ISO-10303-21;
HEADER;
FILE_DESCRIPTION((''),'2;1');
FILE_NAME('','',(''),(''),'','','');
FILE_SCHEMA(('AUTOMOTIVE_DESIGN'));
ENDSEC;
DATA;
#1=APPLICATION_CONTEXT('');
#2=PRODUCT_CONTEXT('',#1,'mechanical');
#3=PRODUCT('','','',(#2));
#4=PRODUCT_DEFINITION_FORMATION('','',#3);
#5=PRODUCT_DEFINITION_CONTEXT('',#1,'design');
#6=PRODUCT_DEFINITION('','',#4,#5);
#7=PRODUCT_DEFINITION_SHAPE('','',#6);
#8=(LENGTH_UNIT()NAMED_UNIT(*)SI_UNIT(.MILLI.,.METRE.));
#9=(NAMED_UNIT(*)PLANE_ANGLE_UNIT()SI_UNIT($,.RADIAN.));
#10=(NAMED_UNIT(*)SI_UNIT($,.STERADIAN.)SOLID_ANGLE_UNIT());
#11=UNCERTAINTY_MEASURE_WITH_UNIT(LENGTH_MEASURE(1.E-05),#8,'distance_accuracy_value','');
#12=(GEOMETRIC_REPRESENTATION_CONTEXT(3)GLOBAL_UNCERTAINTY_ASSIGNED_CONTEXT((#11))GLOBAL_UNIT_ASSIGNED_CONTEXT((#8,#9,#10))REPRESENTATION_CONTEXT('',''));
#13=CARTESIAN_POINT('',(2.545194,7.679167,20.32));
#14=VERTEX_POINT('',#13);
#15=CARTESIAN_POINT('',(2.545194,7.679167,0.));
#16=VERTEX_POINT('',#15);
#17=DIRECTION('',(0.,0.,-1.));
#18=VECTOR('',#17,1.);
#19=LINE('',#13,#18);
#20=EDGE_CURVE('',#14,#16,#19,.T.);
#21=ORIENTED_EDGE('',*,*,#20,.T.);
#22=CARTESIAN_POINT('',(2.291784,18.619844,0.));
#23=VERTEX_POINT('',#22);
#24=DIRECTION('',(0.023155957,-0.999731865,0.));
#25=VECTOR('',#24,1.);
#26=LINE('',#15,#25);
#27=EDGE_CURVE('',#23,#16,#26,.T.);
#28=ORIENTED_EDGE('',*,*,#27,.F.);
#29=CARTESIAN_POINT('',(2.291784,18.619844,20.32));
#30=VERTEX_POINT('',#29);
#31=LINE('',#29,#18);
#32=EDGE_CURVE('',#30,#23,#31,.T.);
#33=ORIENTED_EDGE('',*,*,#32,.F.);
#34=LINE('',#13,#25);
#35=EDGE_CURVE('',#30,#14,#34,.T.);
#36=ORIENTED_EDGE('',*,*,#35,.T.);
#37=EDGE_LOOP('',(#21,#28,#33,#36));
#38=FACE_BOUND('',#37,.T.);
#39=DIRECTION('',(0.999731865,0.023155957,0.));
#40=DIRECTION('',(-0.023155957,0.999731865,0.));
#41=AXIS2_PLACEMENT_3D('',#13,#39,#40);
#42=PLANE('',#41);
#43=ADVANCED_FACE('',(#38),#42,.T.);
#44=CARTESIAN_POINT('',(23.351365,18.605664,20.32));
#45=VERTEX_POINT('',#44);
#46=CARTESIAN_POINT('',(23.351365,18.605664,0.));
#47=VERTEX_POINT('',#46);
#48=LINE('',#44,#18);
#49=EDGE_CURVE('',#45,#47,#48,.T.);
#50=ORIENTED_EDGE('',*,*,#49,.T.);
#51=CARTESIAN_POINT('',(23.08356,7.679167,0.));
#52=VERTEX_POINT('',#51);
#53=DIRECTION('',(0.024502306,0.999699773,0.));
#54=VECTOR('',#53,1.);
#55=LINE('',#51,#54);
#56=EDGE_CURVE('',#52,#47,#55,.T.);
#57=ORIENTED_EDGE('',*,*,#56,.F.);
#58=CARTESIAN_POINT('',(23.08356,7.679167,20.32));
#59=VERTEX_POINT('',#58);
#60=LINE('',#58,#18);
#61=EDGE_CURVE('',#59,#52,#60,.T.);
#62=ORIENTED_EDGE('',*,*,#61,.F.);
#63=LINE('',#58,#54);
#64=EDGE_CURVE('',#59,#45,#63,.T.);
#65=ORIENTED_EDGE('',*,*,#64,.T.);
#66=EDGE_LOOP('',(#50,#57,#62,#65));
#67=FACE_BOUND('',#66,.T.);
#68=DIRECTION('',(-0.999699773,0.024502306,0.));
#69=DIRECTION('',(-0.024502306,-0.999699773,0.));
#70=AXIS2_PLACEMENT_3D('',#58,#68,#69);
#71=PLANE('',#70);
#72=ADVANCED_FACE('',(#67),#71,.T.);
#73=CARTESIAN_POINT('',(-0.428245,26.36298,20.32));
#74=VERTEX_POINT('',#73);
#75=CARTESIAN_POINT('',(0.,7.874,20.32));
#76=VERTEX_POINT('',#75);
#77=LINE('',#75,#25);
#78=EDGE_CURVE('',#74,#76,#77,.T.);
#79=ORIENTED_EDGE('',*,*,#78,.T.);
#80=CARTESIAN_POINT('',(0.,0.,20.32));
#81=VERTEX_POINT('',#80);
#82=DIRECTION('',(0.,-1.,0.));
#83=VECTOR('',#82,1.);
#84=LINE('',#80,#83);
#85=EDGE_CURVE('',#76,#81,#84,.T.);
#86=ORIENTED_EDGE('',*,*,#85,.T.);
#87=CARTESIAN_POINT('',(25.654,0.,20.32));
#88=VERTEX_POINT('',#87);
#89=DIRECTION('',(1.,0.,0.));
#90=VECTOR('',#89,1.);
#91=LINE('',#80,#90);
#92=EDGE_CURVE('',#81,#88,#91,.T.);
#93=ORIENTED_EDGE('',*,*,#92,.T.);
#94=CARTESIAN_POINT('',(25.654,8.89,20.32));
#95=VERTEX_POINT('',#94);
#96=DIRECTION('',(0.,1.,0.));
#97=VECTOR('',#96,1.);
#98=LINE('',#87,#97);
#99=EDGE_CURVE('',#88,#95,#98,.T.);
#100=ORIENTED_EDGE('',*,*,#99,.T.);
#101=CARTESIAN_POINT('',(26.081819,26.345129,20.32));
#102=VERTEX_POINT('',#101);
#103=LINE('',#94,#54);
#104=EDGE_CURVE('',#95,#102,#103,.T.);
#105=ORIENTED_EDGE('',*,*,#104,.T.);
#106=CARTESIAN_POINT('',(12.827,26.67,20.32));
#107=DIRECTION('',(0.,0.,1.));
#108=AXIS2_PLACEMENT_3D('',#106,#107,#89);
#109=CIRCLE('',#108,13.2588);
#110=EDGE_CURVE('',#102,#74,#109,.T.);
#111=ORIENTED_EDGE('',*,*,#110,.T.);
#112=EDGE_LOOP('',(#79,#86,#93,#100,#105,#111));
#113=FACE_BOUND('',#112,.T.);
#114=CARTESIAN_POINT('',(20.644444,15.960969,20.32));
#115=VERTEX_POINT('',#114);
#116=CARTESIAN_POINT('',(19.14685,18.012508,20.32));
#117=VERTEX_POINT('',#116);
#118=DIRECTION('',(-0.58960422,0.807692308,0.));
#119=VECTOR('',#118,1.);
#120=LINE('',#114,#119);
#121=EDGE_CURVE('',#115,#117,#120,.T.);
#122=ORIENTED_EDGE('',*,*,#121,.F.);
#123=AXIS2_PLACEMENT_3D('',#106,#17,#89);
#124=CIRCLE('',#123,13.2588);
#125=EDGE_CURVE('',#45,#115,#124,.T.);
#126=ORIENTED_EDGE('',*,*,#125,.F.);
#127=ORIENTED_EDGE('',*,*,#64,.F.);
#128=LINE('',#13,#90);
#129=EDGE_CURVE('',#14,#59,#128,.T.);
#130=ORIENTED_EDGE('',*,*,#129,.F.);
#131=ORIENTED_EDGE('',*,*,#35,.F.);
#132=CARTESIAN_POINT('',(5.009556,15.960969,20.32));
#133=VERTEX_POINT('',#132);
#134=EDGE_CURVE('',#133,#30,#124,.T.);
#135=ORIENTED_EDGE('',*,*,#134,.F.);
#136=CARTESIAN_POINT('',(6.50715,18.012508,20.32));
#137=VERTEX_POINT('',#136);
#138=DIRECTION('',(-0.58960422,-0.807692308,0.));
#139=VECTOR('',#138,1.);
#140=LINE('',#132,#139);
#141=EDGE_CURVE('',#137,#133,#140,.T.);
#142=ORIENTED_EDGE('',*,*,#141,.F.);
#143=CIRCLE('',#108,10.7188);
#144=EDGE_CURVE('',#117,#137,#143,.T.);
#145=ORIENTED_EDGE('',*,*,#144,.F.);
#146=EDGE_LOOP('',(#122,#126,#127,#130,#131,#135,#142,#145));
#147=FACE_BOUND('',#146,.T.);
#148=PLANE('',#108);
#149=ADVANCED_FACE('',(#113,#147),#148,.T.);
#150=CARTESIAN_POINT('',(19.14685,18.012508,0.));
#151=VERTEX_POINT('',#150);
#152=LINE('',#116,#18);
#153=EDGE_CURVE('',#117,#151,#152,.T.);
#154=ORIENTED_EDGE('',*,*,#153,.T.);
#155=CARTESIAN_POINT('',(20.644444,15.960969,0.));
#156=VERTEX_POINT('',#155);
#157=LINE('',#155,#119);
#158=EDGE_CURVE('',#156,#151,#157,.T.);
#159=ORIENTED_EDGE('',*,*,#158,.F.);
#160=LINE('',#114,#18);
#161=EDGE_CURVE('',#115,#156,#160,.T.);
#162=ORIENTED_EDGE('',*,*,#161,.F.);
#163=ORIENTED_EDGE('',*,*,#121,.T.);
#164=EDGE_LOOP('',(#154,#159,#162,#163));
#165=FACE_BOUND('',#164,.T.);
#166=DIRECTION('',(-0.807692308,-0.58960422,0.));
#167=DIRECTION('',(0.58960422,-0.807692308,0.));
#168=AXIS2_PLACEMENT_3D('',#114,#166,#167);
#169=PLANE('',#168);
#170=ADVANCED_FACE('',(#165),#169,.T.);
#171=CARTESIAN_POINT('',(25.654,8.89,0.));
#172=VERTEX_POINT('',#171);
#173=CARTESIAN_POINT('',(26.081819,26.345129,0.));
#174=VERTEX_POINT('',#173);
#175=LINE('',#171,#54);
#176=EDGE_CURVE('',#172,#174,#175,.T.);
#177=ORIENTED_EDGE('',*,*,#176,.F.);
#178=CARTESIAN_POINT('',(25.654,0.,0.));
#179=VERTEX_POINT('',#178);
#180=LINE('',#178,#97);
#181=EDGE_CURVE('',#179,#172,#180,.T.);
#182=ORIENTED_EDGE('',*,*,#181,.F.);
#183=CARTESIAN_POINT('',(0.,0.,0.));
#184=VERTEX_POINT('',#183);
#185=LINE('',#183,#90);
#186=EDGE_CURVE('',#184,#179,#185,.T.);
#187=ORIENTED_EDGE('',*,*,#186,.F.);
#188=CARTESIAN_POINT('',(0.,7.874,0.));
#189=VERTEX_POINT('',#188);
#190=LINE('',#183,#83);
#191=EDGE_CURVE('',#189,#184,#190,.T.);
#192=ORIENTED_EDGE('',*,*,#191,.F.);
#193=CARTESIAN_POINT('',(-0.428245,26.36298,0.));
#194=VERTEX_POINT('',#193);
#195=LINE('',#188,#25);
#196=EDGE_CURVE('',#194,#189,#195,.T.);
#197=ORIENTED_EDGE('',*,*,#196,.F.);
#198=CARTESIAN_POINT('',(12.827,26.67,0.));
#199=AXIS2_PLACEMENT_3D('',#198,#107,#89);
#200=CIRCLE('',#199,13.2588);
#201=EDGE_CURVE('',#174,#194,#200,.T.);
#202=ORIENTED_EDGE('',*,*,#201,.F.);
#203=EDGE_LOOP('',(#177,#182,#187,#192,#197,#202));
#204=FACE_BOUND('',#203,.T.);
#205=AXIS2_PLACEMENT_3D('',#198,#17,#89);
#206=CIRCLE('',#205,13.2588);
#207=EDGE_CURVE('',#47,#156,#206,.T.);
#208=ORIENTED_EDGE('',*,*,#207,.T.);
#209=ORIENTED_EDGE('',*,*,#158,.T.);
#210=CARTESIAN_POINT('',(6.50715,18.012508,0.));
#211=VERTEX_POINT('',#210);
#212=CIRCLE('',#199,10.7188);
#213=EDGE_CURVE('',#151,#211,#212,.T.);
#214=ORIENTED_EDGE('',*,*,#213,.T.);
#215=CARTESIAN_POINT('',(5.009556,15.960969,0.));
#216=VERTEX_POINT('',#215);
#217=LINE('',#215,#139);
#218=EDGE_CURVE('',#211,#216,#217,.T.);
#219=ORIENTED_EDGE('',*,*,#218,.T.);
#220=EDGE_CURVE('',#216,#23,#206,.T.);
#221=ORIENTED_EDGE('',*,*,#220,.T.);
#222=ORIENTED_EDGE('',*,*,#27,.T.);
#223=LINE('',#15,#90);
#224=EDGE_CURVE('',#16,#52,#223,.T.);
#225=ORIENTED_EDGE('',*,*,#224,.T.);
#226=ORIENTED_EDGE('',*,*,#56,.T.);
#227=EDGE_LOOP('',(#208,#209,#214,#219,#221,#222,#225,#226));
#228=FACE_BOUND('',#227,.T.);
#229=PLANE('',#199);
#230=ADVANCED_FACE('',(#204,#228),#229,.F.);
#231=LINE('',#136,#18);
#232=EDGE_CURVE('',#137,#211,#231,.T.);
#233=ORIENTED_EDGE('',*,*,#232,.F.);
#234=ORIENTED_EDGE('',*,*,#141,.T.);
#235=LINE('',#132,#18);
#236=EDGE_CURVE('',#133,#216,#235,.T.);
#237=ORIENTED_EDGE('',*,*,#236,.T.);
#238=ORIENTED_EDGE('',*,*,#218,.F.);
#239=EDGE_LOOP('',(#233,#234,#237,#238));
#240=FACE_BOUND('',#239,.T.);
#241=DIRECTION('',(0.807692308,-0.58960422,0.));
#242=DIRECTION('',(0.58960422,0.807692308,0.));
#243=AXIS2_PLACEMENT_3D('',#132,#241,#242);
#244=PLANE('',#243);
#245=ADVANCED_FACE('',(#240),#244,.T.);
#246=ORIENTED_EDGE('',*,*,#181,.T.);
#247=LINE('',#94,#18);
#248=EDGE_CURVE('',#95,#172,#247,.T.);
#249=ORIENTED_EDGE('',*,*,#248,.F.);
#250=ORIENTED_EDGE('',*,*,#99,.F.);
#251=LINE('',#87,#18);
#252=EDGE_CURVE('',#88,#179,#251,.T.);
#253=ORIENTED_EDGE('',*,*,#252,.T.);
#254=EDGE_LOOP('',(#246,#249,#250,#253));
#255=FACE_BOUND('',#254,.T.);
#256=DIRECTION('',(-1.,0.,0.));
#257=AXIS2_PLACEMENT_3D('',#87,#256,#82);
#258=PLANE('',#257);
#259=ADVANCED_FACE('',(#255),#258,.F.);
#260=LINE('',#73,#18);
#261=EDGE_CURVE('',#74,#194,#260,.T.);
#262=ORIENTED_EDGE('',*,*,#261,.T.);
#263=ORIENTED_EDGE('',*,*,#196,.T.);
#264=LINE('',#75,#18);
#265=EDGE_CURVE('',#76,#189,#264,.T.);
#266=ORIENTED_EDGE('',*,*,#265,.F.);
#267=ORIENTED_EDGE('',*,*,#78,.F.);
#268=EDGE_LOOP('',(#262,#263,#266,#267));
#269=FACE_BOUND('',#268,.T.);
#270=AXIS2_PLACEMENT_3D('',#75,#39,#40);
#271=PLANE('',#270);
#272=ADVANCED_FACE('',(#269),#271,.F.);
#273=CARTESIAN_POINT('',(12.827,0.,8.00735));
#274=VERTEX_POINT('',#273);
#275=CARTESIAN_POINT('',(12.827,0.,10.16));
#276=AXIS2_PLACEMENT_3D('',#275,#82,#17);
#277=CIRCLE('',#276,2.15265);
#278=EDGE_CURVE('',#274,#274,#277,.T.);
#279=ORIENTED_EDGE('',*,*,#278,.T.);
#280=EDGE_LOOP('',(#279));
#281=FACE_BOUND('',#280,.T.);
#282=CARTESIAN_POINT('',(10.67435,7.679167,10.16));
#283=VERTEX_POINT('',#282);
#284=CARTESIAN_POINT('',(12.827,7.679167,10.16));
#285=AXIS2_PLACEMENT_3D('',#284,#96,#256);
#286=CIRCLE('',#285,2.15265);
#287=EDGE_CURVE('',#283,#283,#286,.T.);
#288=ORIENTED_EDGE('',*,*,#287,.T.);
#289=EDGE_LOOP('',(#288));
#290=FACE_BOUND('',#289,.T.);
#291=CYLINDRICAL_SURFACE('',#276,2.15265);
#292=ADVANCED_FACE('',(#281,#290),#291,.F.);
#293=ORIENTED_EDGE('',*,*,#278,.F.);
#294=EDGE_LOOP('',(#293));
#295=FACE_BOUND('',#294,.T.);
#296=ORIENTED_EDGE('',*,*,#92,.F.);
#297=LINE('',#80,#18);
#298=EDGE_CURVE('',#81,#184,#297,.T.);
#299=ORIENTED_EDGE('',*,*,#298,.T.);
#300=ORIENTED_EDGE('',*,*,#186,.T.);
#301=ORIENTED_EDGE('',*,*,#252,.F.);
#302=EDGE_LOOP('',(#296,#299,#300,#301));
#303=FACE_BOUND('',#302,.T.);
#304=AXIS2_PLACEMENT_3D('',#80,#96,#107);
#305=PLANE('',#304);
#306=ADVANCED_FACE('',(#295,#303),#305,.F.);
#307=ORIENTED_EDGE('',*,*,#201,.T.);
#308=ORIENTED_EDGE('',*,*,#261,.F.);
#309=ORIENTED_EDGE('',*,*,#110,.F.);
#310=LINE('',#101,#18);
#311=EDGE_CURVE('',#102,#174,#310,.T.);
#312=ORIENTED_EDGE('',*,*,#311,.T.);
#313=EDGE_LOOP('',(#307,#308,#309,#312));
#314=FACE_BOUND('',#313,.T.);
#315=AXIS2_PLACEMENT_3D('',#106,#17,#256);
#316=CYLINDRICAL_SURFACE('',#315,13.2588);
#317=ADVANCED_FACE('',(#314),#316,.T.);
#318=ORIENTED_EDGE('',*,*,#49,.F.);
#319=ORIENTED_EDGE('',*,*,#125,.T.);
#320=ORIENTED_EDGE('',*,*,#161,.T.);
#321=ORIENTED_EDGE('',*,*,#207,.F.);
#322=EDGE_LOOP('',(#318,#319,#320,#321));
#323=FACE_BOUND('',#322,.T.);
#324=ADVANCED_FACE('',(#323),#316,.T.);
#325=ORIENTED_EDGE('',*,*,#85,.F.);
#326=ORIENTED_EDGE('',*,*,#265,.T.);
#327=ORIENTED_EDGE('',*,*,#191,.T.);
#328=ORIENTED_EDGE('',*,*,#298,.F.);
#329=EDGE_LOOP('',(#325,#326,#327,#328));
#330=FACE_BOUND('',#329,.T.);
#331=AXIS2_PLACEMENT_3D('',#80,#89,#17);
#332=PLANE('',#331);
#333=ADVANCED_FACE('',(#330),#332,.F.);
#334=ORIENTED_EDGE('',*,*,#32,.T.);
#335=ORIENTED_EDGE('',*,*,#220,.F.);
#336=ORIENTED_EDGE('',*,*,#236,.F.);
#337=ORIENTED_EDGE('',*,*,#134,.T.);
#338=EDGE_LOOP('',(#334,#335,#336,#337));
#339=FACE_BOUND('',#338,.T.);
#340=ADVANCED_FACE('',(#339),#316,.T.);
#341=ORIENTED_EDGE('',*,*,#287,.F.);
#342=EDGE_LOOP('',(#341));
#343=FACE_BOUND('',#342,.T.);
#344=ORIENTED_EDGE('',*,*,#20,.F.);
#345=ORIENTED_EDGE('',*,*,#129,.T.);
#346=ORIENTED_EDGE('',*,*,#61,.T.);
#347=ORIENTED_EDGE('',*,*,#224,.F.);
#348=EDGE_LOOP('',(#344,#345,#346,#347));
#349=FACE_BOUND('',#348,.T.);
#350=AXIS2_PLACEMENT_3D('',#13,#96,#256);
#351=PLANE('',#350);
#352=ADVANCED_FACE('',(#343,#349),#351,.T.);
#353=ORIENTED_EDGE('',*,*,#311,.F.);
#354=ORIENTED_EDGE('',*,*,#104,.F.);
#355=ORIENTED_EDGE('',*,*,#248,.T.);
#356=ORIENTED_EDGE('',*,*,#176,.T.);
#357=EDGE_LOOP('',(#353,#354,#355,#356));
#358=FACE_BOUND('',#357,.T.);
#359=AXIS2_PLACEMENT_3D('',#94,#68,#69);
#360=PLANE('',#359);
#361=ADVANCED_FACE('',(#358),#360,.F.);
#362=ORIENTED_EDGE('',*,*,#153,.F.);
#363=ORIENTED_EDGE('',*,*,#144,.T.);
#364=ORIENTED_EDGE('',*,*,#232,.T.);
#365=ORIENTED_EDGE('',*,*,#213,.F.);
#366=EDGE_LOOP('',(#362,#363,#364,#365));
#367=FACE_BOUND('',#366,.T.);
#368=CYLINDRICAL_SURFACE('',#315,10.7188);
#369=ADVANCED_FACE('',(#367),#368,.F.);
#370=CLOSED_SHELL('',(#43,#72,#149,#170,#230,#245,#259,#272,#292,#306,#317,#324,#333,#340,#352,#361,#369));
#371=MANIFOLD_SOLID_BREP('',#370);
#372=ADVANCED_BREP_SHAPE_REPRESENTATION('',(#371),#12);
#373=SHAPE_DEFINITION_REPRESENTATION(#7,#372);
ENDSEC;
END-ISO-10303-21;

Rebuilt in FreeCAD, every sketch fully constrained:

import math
import FreeCAD as App
import Part
import Sketcher

V = App.Vector
Q = App.Units.Quantity

doc = App.newDocument("Part")
body = doc.addObject("PartDesign::Body", "Body")

sketch1 = doc.addObject("Sketcher::SketchObject", "Sketch")
body.addObject(sketch1)
sketch1.AttachmentSupport = (doc.XY_Plane, [""])
sketch1.MapMode = "FlatFace"
sketch1.addGeometry([
    Part.LineSegment(V(0, 0, 0), V(25.7, 0, 0)),
    Part.LineSegment(V(25.7, 0, 0), V(25.7, 8.9, 0)),
    Part.LineSegment(V(25.7, 8.9, 0), V(26.1, 26.3, 0)),
    Part.ArcOfCircle(Part.Circle(V(12.8, 26.7, 0), V(0, 0, 1), 13.3), math.radians(-1), math.radians(181)),
    Part.LineSegment(V(-0.4, 26.4, 0), V(0, 7.9, 0)),
    Part.LineSegment(V(0, 7.9, 0), V(0, 0, 0)),
    Part.LineSegment(V(23.1, 7.7, 0), V(2.5, 7.7, 0)),
    Part.LineSegment(V(2.5, 7.7, 0), V(2.3, 18.6, 0)),
    Part.ArcOfCircle(Part.Circle(V(12.8, 26.7, 0), V(0, 0, 1), 13.3), math.radians(-142.62), math.radians(-126.13)),
    Part.LineSegment(V(5, 16, 0), V(6.5, 18, 0)),
    Part.ArcOfCircle(Part.Circle(V(12.8, 26.7, 0), V(0, 0, 1), 10.7), math.radians(-54), math.radians(234)),
    Part.LineSegment(V(19.1, 18, 0), V(20.6, 16, 0)),
    Part.ArcOfCircle(Part.Circle(V(12.8, 26.7, 0), V(0, 0, 1), 13.3), math.radians(-53.87), math.radians(-37.46)),
    Part.LineSegment(V(23.4, 18.6, 0), V(23.1, 7.7, 0)),
], False)
sketch1.addConstraint([
    Sketcher.Constraint("Coincident", 0, 2, 1, 1),
    Sketcher.Constraint("Coincident", 1, 2, 2, 1),
    Sketcher.Constraint("Tangent", 2, 2, 3, 1),
    Sketcher.Constraint("Tangent", 3, 2, 4, 1),
    Sketcher.Constraint("Coincident", 4, 2, 5, 1),
    Sketcher.Constraint("Coincident", 5, 2, 0, 1),
    Sketcher.Constraint("Coincident", 6, 2, 7, 1),
    Sketcher.Constraint("Coincident", 7, 2, 8, 1),
    Sketcher.Constraint("Coincident", 8, 2, 9, 1),
    Sketcher.Constraint("Coincident", 9, 2, 10, 2),
    Sketcher.Constraint("Coincident", 10, 1, 11, 1),
    Sketcher.Constraint("Coincident", 11, 2, 12, 1),
    Sketcher.Constraint("Coincident", 12, 2, 13, 1),
    Sketcher.Constraint("Coincident", 13, 2, 6, 1),
    Sketcher.Constraint("Horizontal", 0),
    Sketcher.Constraint("Vertical", 1),
    Sketcher.Constraint("Vertical", 5),
    Sketcher.Constraint("Horizontal", 6),
    Sketcher.Constraint("Coincident", 5, 2, -1, 1),
    Sketcher.Constraint("Coincident", 8, 3, 3, 3),
    Sketcher.Constraint("Coincident", 10, 3, 3, 3),
    Sketcher.Constraint("Coincident", 12, 3, 3, 3),
    Sketcher.Constraint("Equal", 3, 8),
    Sketcher.Constraint("Equal", 8, 12),
    Sketcher.Constraint("Parallel", 4, 7),
    Sketcher.Constraint("Parallel", 2, 13),
    Sketcher.Constraint("Horizontal", 9, 2, 10, 1),
    Sketcher.Constraint("Horizontal", 8, 2, 11, 2),
    Sketcher.Constraint("Radius", 3, Q("0.522 in")),
    Sketcher.Constraint("Radius", 10, Q("0.422 in")),
    Sketcher.Constraint("DistanceX", 0, 1, 0, 2, Q("1.01 in")),
    Sketcher.Constraint("DistanceY", 1, 1, 1, 2, Q("0.35 in")),
    Sketcher.Constraint("DistanceY", 5, 2, 5, 1, Q("0.31 in")),
    Sketcher.Constraint("DistanceY", 1, 2, 12, 3, Q("0.7 in")),
    Sketcher.Constraint("DistanceX", -1, 1, 3, 3, Q("0.505 in")),
    Sketcher.Constraint("DistanceX", 3, 2, 8, 2, 5.4378),
    Sketcher.Constraint("Distance", 7, 10.943612),
    Sketcher.Constraint("Distance", 13, 10.929778),
    Sketcher.Constraint("DistanceX", 6, 2, 6, 1, 20.538366),
    Sketcher.Constraint("DistanceX", -1, 1, 9, 2, 6.50715),
])
pad1 = doc.addObject("PartDesign::Pad", "Pad")
body.addObject(pad1)
pad1.Profile = sketch1
pad1.Length = Q("0.8 in")

sketch2 = doc.addObject("Sketcher::SketchObject", "Sketch001")
body.addObject(sketch2)
sketch2.AttachmentSupport = (doc.XZ_Plane, [""])
sketch2.MapMode = "FlatFace"
sketch2.addGeometry(Part.Circle(V(12.8, 10.2, 0), V(0, 0, 1), 2.2), False)
sketch2.addConstraint([
    Sketcher.Constraint("Diameter", 0, Q("0.1695 in")),
    Sketcher.Constraint("DistanceY", -1, 1, 0, 3, Q("0.4 in")),
    Sketcher.Constraint("DistanceX", -1, 1, 0, 3, Q("0.505 in")),
])
doc.recompute()
hole = doc.addObject("PartDesign::Hole", "Hole")
body.addObject(hole)
hole.Profile = sketch2
hole.ThreadType = "None"
hole.Diameter = Q("0.1695 in")
hole.DepthType = "Dimension"
hole.Depth = 7.679167
hole.DrillPoint = "Flat"

doc.recompute()
